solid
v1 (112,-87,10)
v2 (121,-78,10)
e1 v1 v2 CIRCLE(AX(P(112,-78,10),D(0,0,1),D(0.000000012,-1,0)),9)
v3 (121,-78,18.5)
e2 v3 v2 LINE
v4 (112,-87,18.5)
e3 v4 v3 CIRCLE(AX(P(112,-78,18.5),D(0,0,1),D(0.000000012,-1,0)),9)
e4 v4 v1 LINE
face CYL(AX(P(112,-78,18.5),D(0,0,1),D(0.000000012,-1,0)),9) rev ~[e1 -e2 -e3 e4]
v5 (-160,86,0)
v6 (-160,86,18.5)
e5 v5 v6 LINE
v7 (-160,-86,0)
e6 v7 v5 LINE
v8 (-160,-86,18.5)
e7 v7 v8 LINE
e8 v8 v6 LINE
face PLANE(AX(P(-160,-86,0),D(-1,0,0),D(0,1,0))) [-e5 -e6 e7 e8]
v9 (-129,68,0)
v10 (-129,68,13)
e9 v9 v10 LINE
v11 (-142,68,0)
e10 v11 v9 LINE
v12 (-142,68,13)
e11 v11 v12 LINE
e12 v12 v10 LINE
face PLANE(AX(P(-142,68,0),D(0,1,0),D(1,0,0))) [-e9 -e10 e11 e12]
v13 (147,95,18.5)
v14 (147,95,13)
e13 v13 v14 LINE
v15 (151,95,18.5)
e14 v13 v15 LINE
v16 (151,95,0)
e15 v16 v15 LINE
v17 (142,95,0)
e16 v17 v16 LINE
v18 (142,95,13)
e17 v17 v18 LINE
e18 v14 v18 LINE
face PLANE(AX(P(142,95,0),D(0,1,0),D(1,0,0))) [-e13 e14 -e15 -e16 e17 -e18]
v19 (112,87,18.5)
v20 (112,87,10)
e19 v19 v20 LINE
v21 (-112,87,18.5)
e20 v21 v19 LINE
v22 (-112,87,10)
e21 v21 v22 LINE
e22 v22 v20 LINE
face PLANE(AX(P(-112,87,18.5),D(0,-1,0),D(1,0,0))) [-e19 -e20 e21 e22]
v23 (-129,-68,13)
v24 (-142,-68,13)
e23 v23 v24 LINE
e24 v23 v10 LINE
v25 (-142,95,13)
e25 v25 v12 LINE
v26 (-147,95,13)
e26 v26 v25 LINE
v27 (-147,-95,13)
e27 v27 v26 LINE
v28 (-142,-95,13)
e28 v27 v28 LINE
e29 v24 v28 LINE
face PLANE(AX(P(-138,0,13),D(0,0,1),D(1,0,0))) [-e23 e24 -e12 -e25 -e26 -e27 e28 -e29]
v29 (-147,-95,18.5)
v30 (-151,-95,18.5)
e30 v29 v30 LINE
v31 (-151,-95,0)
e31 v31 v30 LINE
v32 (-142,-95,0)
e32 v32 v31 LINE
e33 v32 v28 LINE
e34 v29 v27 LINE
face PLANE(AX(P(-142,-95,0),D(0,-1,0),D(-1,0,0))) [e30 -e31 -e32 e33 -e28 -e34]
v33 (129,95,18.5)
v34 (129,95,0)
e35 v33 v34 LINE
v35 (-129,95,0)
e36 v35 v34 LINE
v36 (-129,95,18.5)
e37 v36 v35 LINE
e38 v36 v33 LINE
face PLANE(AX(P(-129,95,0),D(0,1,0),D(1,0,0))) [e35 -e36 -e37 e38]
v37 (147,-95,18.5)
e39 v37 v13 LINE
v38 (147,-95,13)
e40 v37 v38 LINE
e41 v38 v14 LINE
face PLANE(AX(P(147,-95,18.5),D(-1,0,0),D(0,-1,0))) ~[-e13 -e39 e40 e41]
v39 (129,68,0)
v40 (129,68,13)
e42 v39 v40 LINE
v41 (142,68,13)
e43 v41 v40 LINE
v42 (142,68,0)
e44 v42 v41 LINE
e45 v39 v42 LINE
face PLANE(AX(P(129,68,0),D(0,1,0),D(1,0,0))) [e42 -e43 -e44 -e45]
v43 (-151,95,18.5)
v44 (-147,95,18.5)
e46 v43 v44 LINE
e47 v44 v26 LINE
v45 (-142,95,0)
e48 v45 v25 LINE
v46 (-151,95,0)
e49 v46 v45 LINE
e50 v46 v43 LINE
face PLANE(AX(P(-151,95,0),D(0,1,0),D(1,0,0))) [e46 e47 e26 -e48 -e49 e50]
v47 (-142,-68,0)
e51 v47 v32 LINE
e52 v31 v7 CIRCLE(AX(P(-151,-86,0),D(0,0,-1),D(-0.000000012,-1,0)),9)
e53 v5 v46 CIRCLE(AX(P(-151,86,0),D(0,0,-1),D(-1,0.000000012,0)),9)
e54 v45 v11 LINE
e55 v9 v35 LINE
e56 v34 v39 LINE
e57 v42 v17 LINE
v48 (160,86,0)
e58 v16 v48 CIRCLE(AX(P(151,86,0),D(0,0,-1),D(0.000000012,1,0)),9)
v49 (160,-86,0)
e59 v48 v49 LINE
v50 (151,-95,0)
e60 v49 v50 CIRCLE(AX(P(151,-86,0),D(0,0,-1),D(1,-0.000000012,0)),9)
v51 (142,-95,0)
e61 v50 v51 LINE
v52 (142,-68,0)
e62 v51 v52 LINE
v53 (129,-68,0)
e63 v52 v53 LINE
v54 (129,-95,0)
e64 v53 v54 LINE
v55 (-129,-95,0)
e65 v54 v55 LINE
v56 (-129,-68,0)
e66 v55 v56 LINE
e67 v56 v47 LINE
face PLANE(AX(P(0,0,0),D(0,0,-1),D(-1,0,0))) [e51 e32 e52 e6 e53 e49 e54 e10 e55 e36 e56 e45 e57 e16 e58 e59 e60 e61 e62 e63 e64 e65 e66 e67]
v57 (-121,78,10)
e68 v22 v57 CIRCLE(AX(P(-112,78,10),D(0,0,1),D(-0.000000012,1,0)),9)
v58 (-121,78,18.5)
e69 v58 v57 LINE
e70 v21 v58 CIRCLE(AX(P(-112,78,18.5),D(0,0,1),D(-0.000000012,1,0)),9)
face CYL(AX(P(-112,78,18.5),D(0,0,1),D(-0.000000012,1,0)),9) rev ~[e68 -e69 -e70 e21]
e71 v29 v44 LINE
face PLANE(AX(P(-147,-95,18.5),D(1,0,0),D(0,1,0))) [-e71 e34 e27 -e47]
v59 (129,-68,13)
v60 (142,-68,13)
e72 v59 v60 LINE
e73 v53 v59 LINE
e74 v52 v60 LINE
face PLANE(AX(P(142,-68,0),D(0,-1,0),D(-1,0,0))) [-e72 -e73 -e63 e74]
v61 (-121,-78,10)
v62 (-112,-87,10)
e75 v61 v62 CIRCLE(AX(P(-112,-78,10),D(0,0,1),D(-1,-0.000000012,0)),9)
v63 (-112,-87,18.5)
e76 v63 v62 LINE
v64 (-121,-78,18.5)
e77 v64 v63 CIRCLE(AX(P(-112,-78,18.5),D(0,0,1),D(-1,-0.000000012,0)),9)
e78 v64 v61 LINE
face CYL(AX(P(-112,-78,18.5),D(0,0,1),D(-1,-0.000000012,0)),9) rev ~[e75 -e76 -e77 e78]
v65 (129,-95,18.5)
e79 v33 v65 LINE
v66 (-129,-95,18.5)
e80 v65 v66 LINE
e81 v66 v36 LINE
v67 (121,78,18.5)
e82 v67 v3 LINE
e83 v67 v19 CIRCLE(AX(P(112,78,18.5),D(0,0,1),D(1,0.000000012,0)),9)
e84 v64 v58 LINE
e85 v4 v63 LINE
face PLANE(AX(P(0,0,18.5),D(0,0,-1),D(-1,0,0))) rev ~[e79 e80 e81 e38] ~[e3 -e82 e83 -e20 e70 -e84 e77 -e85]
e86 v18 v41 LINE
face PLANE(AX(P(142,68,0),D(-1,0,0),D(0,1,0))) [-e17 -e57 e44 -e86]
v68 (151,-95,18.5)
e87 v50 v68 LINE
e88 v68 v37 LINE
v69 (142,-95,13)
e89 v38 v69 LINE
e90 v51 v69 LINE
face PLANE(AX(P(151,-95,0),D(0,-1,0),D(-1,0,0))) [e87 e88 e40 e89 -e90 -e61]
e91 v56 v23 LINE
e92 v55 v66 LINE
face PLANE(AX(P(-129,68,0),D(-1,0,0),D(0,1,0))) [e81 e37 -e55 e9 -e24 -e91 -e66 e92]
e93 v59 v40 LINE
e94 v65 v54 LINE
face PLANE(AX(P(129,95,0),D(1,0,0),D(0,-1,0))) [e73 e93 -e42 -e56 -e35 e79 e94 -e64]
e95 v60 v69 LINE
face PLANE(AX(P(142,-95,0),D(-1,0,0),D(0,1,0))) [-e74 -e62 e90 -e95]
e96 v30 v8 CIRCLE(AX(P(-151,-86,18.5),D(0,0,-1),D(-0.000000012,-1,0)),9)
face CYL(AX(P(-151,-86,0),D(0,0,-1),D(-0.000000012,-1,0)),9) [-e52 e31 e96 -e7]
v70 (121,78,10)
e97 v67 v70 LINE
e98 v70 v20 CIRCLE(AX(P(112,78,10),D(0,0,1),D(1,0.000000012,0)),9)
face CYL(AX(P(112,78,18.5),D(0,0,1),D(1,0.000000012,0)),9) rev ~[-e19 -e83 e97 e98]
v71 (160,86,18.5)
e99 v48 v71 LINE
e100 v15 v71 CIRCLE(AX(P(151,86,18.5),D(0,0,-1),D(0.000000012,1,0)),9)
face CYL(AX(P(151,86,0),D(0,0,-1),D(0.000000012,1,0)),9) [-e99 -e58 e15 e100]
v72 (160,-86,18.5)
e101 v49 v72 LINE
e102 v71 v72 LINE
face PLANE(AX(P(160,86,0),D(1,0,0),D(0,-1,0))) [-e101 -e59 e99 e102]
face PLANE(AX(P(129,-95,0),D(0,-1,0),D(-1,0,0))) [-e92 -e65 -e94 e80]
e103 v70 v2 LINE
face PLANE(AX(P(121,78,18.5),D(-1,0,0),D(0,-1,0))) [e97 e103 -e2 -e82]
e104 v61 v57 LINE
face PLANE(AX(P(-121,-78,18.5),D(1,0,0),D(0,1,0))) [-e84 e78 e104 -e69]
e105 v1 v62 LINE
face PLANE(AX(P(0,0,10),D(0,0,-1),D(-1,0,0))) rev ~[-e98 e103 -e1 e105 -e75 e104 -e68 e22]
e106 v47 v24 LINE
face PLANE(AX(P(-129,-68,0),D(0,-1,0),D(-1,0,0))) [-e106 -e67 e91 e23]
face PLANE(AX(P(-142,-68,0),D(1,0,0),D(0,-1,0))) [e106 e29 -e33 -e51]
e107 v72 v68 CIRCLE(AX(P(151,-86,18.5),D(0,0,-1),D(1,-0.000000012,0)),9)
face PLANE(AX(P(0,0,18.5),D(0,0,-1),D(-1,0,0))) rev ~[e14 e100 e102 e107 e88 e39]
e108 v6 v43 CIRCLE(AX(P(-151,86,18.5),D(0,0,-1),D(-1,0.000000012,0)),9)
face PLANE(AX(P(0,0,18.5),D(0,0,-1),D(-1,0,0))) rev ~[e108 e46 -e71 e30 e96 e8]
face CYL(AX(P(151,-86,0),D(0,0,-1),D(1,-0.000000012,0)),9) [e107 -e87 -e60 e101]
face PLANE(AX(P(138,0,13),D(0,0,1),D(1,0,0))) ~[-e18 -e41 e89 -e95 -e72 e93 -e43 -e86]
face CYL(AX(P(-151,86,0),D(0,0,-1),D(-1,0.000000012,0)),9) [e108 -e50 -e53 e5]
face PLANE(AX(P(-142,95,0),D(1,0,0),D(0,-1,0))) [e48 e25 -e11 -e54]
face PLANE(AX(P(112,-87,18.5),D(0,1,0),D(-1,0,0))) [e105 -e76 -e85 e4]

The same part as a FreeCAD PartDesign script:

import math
import FreeCAD as App
import Part
import Sketcher

V = App.Vector


def add_polygon(sketch, points):
    """Adds a closed chain of lines whose ends are joined by coincident constraints."""
    first, n = sketch.GeometryCount, len(points)
    for a, b in zip(points, points[1:] + points[:1]):
        sketch.addGeometry(Part.LineSegment(App.Vector(*a, 0), App.Vector(*b, 0)), False)
    for i in range(n):
        sketch.addConstraint(Sketcher.Constraint("Coincident", first + i, 2, first + (i + 1) % n, 1))

doc = App.newDocument("Part")
body = doc.addObject("PartDesign::Body", "Body")

sketch1 = body.newObject("Sketcher::SketchObject", "Sketch")
sketch1.AttachmentSupport = (doc.getObject("XY_Plane"), [""])
sketch1.MapMode = "FlatFace"
sketch1.addGeometry(Part.LineSegment(V(-142, 95, 0), V(-151, 95, 0)), False)
sketch1.addGeometry(Part.ArcOfCircle(Part.Circle(V(-151, 86, 0), V(0, 0, 1), 9), math.radians(90.000001), math.radians(179.999999)), False)
sketch1.addGeometry(Part.LineSegment(V(-160, 86, 0), V(-160, -86, 0)), False)
sketch1.addGeometry(Part.ArcOfCircle(Part.Circle(V(-151, -86, 0), V(0, 0, 1), 9), math.radians(-179.999999), math.radians(-90.000001)), False)
sketch1.addGeometry(Part.LineSegment(V(-151, -95, 0), V(-142, -95, 0)), False)
sketch1.addGeometry(Part.LineSegment(V(-142, -95, 0), V(-142, -68, 0)), False)
sketch1.addGeometry(Part.LineSegment(V(-142, -68, 0), V(-129, -68, 0)), False)
sketch1.addGeometry(Part.LineSegment(V(-129, -68, 0), V(-129, -95, 0)), False)
sketch1.addGeometry(Part.LineSegment(V(-129, -95, 0), V(129, -95, 0)), False)
sketch1.addGeometry(Part.LineSegment(V(129, -95, 0), V(129, -68, 0)), False)
sketch1.addGeometry(Part.LineSegment(V(129, -68, 0), V(142, -68, 0)), False)
sketch1.addGeometry(Part.LineSegment(V(142, -68, 0), V(142, -95, 0)), False)
sketch1.addGeometry(Part.LineSegment(V(142, -95, 0), V(151, -95, 0)), False)
sketch1.addGeometry(Part.ArcOfCircle(Part.Circle(V(151, -86, 0), V(0, 0, 1), 9), math.radians(-89.999999), math.radians(-0.000001)), False)
sketch1.addGeometry(Part.LineSegment(V(160, -86, 0), V(160, 86, 0)), False)
sketch1.addGeometry(Part.ArcOfCircle(Part.Circle(V(151, 86, 0), V(0, 0, 1), 9), math.radians(0.000001), math.radians(89.999999)), False)
sketch1.addGeometry(Part.LineSegment(V(151, 95, 0), V(142, 95, 0)), False)
sketch1.addGeometry(Part.LineSegment(V(142, 95, 0), V(142, 68, 0)), False)
sketch1.addGeometry(Part.LineSegment(V(142, 68, 0), V(129, 68, 0)), False)
sketch1.addGeometry(Part.LineSegment(V(129, 68, 0), V(129, 95, 0)), False)
sketch1.addGeometry(Part.LineSegment(V(129, 95, 0), V(-129, 95, 0)), False)
sketch1.addGeometry(Part.LineSegment(V(-129, 95, 0), V(-129, 68, 0)), False)
sketch1.addGeometry(Part.LineSegment(V(-129, 68, 0), V(-142, 68, 0)), False)
sketch1.addGeometry(Part.LineSegment(V(-142, 68, 0), V(-142, 95, 0)), False)
sketch1.addConstraint(Sketcher.Constraint("Tangent", 0, 2, 1, 1))
sketch1.addConstraint(Sketcher.Constraint("Tangent", 1, 2, 2, 1))
sketch1.addConstraint(Sketcher.Constraint("Tangent", 2, 2, 3, 1))
sketch1.addConstraint(Sketcher.Constraint("Tangent", 3, 2, 4, 1))
sketch1.addConstraint(Sketcher.Constraint("Coincident", 4, 2, 5, 1))
sketch1.addConstraint(Sketcher.Constraint("Coincident", 5, 2, 6, 1))
sketch1.addConstraint(Sketcher.Constraint("Coincident", 6, 2, 7, 1))
sketch1.addConstraint(Sketcher.Constraint("Coincident", 7, 2, 8, 1))
sketch1.addConstraint(Sketcher.Constraint("Coincident", 8, 2, 9, 1))
sketch1.addConstraint(Sketcher.Constraint("Coincident", 9, 2, 10, 1))
sketch1.addConstraint(Sketcher.Constraint("Coincident", 10, 2, 11, 1))
sketch1.addConstraint(Sketcher.Constraint("Coincident", 11, 2, 12, 1))
sketch1.addConstraint(Sketcher.Constraint("Tangent", 12, 2, 13, 1))
sketch1.addConstraint(Sketcher.Constraint("Tangent", 13, 2, 14, 1))
sketch1.addConstraint(Sketcher.Constraint("Tangent", 14, 2, 15, 1))
sketch1.addConstraint(Sketcher.Constraint("Tangent", 15, 2, 16, 1))
sketch1.addConstraint(Sketcher.Constraint("Coincident", 16, 2, 17, 1))
sketch1.addConstraint(Sketcher.Constraint("Coincident", 17, 2, 18, 1))
sketch1.addConstraint(Sketcher.Constraint("Coincident", 18, 2, 19, 1))
sketch1.addConstraint(Sketcher.Constraint("Coincident", 19, 2, 20, 1))
sketch1.addConstraint(Sketcher.Constraint("Coincident", 20, 2, 21, 1))
sketch1.addConstraint(Sketcher.Constraint("Coincident", 21, 2, 22, 1))
sketch1.addConstraint(Sketcher.Constraint("Coincident", 22, 2, 23, 1))
sketch1.addConstraint(Sketcher.Constraint("Coincident", 23, 2, 0, 1))
sketch1.addConstraint(Sketcher.Constraint("Horizontal", 0))
sketch1.addConstraint(Sketcher.Constraint("Vertical", 2))
sketch1.addConstraint(Sketcher.Constraint("Horizontal", 4))
sketch1.addConstraint(Sketcher.Constraint("Vertical", 5))
sketch1.addConstraint(Sketcher.Constraint("Horizontal", 6))
sketch1.addConstraint(Sketcher.Constraint("Vertical", 7))
sketch1.addConstraint(Sketcher.Constraint("Horizontal", 8))
sketch1.addConstraint(Sketcher.Constraint("Vertical", 9))
sketch1.addConstraint(Sketcher.Constraint("Horizontal", 10))
sketch1.addConstraint(Sketcher.Constraint("Vertical", 11))
sketch1.addConstraint(Sketcher.Constraint("Horizontal", 12))
sketch1.addConstraint(Sketcher.Constraint("Vertical", 14))
sketch1.addConstraint(Sketcher.Constraint("Horizontal", 16))
sketch1.addConstraint(Sketcher.Constraint("Vertical", 17))
sketch1.addConstraint(Sketcher.Constraint("Horizontal", 18))
sketch1.addConstraint(Sketcher.Constraint("Vertical", 19))
sketch1.addConstraint(Sketcher.Constraint("Horizontal", 20))
sketch1.addConstraint(Sketcher.Constraint("Vertical", 21))
sketch1.addConstraint(Sketcher.Constraint("Horizontal", 22))
sketch1.addConstraint(Sketcher.Constraint("Vertical", 23))
sketch1.addConstraint(Sketcher.Constraint("Equal", 1, 3))
sketch1.addConstraint(Sketcher.Constraint("Equal", 3, 13))
sketch1.addConstraint(Sketcher.Constraint("Equal", 13, 15))
sketch1.addConstraint(Sketcher.Constraint("Symmetric", 1, 3, 13, 3, -1, 1))
sketch1.addConstraint(Sketcher.Constraint("Symmetric", 4, 2, 16, 2, -1, 1))
sketch1.addConstraint(Sketcher.Constraint("Symmetric", 6, 2, 18, 2, -1, 1))
sketch1.addConstraint(Sketcher.Constraint("Symmetric", 8, 2, 20, 2, -1, 1))
sketch1.addConstraint(Sketcher.Constraint("Symmetric", 10, 2, 22, 2, -1, 1))
sketch1.addConstraint(Sketcher.Constraint("Symmetric", 6, 2, 9, 2, -2))
sketch1.addConstraint(Sketcher.Constraint("Symmetric", 4, 2, 11, 2, -2))
sketch1.addConstraint(Sketcher.Constraint("Horizontal", 4, 2, 7, 2))
sketch1.addConstraint(Sketcher.Constraint("Radius", 1, 9.0))
sketch1.addConstraint(Sketcher.Constraint("DistanceX", 0, 2, 0, 1, 9.0))
sketch1.addConstraint(Sketcher.Constraint("DistanceX", 6, 1, 6, 2, 13.0))
sketch1.addConstraint(Sketcher.Constraint("DistanceX", 8, 1, 8, 2, 258.0))
sketch1.addConstraint(Sketcher.Constraint("DistanceY", 2, 2, 2, 1, 172.0))
sketch1.addConstraint(Sketcher.Constraint("DistanceY", 5, 1, 5, 2, 27.0))
pad1 = body.newObject("PartDesign::Pad", "Pad")
pad1.Profile = sketch1
pad1.Length = 18.5

sketch2 = body.newObject("Sketcher::SketchObject", "Sketch001")
sketch2.AttachmentSupport = (doc.getObject("XY_Plane"), [""])
sketch2.MapMode = "FlatFace"
sketch2.AttachmentOffset = App.Placement(V(0, 0, 18.5), App.Rotation())
add_polygon(sketch2, [(-147, 95), (-147, -95), (-129, -95), (-129, 95)])
sketch2.addConstraint(Sketcher.Constraint("Vertical", 0))
sketch2.addConstraint(Sketcher.Constraint("Horizontal", 1))
sketch2.addConstraint(Sketcher.Constraint("Vertical", 2))
sketch2.addConstraint(Sketcher.Constraint("Horizontal", 3))
sketch2.addConstraint(Sketcher.Constraint("DistanceX", 1, 1, 1, 2, 18.0))
sketch2.addConstraint(Sketcher.Constraint("DistanceY", 0, 2, 0, 1, 190.0))
sketch2.addConstraint(Sketcher.Constraint("DistanceX", 0, 2, -1, 1, 147.0))
sketch2.addConstraint(Sketcher.Constraint("DistanceY", 0, 2, -1, 1, 95.0))
pocket1 = body.newObject("PartDesign::Pocket", "Pocket")
pocket1.Profile = sketch2
pocket1.Length = 5.5
doc.recompute()

mirrored = body.newObject("PartDesign::Mirrored", "Mirrored")
mirrored.Originals = [pocket1]
mirrored.MirrorPlane = (doc.getObject("YZ_Plane"), [""])
body.Tip = mirrored

sketch3 = body.newObject("Sketcher::SketchObject", "Sketch002")
sketch3.AttachmentSupport = (doc.getObject("XY_Plane"), [""])
sketch3.MapMode = "FlatFace"
sketch3.AttachmentOffset = App.Placement(V(0, 0, 18.5), App.Rotation())
sketch3.addGeometry(Part.LineSegment(V(112, 87, 0), V(-112, 87, 0)), False)
sketch3.addGeometry(Part.ArcOfCircle(Part.Circle(V(-112, 78, 0), V(0, 0, 1), 9), math.radians(90.000001), math.radians(179.999999)), False)
sketch3.addGeometry(Part.LineSegment(V(-121, 78, 0), V(-121, -78, 0)), False)
sketch3.addGeometry(Part.ArcOfCircle(Part.Circle(V(-112, -78, 0), V(0, 0, 1), 9), math.radians(-179.999999), math.radians(-90.000001)), False)
sketch3.addGeometry(Part.LineSegment(V(-112, -87, 0), V(112, -87, 0)), False)
sketch3.addGeometry(Part.ArcOfCircle(Part.Circle(V(112, -78, 0), V(0, 0, 1), 9), math.radians(-89.999999), math.radians(-0.000001)), False)
sketch3.addGeometry(Part.LineSegment(V(121, -78, 0), V(121, 78, 0)), False)
sketch3.addGeometry(Part.ArcOfCircle(Part.Circle(V(112, 78, 0), V(0, 0, 1), 9), math.radians(0.000001), math.radians(89.999999)), False)
sketch3.addConstraint(Sketcher.Constraint("Tangent", 0, 2, 1, 1))
sketch3.addConstraint(Sketcher.Constraint("Tangent", 1, 2, 2, 1))
sketch3.addConstraint(Sketcher.Constraint("Tangent", 2, 2, 3, 1))
sketch3.addConstraint(Sketcher.Constraint("Tangent", 3, 2, 4, 1))
sketch3.addConstraint(Sketcher.Constraint("Tangent", 4, 2, 5, 1))
sketch3.addConstraint(Sketcher.Constraint("Tangent", 5, 2, 6, 1))
sketch3.addConstraint(Sketcher.Constraint("Tangent", 6, 2, 7, 1))
sketch3.addConstraint(Sketcher.Constraint("Tangent", 7, 2, 0, 1))
sketch3.addConstraint(Sketcher.Constraint("Horizontal", 0))
sketch3.addConstraint(Sketcher.Constraint("Vertical", 2))
sketch3.addConstraint(Sketcher.Constraint("Horizontal", 4))
sketch3.addConstraint(Sketcher.Constraint("Vertical", 6))
sketch3.addConstraint(Sketcher.Constraint("Equal", 1, 3))
sketch3.addConstraint(Sketcher.Constraint("Equal", 3, 5))
sketch3.addConstraint(Sketcher.Constraint("Equal", 5, 7))
sketch3.addConstraint(Sketcher.Constraint("Symmetric", 1, 3, 5, 3, -1, 1))
sketch3.addConstraint(Sketcher.Constraint("Radius", 1, 9.0))
sketch3.addConstraint(Sketcher.Constraint("DistanceX", 0, 2, 0, 1, 224.0))
sketch3.addConstraint(Sketcher.Constraint("DistanceY", 2, 2, 2, 1, 156.0))
pocket2 = body.newObject("PartDesign::Pocket", "Pocket001")
pocket2.Profile = sketch3
pocket2.Length = 8.5
doc.recompute()

mirrored2 = body.newObject("PartDesign::Mirrored", "Mirrored001")
mirrored2.Originals = [pocket2]
mirrored2.MirrorPlane = (doc.getObject("YZ_Plane"), [""])
body.Tip = mirrored2

doc.recompute()
